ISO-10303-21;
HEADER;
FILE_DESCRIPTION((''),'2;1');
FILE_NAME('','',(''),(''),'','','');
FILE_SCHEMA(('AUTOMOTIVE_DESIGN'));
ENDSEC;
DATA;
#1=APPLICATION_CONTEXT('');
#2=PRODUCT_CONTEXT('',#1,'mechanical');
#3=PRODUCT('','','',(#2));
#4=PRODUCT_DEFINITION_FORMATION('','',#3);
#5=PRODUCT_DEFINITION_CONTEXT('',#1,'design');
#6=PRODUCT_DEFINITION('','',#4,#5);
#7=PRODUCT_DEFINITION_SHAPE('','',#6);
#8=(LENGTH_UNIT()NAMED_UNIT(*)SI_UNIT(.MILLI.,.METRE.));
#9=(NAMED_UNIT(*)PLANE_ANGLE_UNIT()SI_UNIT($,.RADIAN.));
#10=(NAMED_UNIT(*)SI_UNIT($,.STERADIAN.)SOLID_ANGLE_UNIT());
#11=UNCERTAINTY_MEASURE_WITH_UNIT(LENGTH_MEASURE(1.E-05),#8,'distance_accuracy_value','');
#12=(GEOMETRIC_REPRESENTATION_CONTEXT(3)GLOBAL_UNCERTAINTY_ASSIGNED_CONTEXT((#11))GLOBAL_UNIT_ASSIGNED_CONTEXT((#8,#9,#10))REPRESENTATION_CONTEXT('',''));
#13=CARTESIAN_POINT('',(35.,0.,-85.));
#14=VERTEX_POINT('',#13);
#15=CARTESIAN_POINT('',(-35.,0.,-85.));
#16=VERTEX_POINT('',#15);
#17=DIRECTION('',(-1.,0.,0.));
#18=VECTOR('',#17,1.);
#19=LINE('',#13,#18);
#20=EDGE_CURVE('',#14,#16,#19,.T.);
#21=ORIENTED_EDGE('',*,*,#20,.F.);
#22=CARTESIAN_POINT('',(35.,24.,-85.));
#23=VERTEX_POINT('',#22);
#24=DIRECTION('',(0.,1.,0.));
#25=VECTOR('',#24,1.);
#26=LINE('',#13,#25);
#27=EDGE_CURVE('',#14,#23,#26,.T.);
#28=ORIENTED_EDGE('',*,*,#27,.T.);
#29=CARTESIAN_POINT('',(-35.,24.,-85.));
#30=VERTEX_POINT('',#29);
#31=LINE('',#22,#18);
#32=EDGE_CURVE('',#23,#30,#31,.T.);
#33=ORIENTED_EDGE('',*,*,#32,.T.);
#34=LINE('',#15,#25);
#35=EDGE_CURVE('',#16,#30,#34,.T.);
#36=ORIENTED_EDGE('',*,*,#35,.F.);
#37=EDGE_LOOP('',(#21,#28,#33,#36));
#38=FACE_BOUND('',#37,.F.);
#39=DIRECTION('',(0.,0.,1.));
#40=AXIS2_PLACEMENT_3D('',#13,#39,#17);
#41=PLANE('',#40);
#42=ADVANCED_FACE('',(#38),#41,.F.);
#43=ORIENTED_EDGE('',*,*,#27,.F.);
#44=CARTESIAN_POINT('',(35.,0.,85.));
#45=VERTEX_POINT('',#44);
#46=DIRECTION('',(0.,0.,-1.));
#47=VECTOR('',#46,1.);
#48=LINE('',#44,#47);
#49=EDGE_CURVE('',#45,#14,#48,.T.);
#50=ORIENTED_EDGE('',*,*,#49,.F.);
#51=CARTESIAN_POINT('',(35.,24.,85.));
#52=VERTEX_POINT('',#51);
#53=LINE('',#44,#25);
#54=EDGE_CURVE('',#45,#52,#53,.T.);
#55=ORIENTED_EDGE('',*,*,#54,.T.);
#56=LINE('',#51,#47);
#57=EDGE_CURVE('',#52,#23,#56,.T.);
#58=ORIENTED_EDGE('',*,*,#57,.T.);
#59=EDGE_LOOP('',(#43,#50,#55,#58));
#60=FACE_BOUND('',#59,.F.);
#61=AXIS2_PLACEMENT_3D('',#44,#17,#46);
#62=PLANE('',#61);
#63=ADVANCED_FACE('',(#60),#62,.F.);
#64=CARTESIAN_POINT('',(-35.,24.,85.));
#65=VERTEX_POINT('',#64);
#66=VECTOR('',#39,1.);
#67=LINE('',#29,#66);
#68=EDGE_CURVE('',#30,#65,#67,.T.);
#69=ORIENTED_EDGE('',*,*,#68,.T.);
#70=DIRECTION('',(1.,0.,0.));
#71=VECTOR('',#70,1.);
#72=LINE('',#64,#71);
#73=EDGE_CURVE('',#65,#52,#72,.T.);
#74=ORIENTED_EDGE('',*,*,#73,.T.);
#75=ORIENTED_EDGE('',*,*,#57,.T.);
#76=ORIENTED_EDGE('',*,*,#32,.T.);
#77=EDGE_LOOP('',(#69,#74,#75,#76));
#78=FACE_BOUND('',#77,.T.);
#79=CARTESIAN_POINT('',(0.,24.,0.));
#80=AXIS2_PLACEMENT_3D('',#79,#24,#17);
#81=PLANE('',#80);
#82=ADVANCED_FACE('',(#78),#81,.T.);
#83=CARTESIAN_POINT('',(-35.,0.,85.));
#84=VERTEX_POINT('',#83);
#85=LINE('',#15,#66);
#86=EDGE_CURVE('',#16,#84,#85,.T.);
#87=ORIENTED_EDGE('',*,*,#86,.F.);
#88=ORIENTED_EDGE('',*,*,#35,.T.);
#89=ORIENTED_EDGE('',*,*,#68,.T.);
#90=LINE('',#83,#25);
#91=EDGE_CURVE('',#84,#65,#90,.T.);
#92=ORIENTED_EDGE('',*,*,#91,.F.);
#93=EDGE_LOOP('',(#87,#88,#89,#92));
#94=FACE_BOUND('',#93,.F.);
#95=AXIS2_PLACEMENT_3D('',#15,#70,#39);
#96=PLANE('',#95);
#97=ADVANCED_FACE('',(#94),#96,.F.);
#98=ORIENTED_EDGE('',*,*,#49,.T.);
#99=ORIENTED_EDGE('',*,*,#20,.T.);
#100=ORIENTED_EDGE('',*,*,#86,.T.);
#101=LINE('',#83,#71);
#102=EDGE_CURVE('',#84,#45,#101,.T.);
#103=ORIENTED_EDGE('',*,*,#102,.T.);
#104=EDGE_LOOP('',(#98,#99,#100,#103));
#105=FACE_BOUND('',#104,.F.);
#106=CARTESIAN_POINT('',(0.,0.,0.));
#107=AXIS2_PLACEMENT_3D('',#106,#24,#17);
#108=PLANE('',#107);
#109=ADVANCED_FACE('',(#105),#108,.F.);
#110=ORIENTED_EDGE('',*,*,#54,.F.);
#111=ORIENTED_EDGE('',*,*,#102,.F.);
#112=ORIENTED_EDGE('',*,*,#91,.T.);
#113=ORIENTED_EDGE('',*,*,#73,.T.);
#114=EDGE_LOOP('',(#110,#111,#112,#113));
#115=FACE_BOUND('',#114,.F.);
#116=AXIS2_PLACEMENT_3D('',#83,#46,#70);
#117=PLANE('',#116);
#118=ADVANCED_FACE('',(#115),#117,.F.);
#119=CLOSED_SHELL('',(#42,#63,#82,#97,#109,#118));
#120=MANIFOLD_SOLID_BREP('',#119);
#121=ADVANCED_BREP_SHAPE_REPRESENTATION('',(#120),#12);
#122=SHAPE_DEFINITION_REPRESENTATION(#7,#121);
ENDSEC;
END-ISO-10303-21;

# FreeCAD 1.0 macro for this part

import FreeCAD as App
import Part
import Sketcher

V = App.Vector

doc = App.newDocument("Part")
body = doc.addObject("PartDesign::Body", "Body")

# Sketch on XZ plane
sketch1 = body.newObject("Sketcher::SketchObject", "Sketch")
sketch1.AttachmentSupport = (doc.getObject("XZ_Plane"), [""])
sketch1.MapMode = "FlatFace"
sketch1.addGeometry([
    Part.LineSegment(V(-35, -85, 0), V(-35, 85, 0)),
    Part.LineSegment(V(-35, 85, 0), V(35, 85, 0)),
    Part.LineSegment(V(35, 85, 0), V(35, -85, 0)),
    Part.LineSegment(V(35, -85, 0), V(-35, -85, 0)),
], False)
sketch1.addConstraint([
    Sketcher.Constraint("Coincident", 0, 2, 1, 1),
    Sketcher.Constraint("Coincident", 1, 2, 2, 1),
    Sketcher.Constraint("Coincident", 2, 2, 3, 1),
    Sketcher.Constraint("Coincident", 3, 2, 0, 1),
    Sketcher.Constraint("Vertical", 0),
    Sketcher.Constraint("Horizontal", 1),
    Sketcher.Constraint("Vertical", 2),
    Sketcher.Constraint("Horizontal", 3),
    Sketcher.Constraint("Symmetric", 0, 2, 2, 2, -1, 1),
    Sketcher.Constraint("DistanceX", 1, 1, 1, 2, 70.0),
    Sketcher.Constraint("DistanceY", 0, 1, 0, 2, 170.0),
])
pad1 = body.newObject("PartDesign::Pad", "Pad")
pad1.Profile = sketch1
pad1.Length = 24
pad1.Reversed = True

doc.recompute()
